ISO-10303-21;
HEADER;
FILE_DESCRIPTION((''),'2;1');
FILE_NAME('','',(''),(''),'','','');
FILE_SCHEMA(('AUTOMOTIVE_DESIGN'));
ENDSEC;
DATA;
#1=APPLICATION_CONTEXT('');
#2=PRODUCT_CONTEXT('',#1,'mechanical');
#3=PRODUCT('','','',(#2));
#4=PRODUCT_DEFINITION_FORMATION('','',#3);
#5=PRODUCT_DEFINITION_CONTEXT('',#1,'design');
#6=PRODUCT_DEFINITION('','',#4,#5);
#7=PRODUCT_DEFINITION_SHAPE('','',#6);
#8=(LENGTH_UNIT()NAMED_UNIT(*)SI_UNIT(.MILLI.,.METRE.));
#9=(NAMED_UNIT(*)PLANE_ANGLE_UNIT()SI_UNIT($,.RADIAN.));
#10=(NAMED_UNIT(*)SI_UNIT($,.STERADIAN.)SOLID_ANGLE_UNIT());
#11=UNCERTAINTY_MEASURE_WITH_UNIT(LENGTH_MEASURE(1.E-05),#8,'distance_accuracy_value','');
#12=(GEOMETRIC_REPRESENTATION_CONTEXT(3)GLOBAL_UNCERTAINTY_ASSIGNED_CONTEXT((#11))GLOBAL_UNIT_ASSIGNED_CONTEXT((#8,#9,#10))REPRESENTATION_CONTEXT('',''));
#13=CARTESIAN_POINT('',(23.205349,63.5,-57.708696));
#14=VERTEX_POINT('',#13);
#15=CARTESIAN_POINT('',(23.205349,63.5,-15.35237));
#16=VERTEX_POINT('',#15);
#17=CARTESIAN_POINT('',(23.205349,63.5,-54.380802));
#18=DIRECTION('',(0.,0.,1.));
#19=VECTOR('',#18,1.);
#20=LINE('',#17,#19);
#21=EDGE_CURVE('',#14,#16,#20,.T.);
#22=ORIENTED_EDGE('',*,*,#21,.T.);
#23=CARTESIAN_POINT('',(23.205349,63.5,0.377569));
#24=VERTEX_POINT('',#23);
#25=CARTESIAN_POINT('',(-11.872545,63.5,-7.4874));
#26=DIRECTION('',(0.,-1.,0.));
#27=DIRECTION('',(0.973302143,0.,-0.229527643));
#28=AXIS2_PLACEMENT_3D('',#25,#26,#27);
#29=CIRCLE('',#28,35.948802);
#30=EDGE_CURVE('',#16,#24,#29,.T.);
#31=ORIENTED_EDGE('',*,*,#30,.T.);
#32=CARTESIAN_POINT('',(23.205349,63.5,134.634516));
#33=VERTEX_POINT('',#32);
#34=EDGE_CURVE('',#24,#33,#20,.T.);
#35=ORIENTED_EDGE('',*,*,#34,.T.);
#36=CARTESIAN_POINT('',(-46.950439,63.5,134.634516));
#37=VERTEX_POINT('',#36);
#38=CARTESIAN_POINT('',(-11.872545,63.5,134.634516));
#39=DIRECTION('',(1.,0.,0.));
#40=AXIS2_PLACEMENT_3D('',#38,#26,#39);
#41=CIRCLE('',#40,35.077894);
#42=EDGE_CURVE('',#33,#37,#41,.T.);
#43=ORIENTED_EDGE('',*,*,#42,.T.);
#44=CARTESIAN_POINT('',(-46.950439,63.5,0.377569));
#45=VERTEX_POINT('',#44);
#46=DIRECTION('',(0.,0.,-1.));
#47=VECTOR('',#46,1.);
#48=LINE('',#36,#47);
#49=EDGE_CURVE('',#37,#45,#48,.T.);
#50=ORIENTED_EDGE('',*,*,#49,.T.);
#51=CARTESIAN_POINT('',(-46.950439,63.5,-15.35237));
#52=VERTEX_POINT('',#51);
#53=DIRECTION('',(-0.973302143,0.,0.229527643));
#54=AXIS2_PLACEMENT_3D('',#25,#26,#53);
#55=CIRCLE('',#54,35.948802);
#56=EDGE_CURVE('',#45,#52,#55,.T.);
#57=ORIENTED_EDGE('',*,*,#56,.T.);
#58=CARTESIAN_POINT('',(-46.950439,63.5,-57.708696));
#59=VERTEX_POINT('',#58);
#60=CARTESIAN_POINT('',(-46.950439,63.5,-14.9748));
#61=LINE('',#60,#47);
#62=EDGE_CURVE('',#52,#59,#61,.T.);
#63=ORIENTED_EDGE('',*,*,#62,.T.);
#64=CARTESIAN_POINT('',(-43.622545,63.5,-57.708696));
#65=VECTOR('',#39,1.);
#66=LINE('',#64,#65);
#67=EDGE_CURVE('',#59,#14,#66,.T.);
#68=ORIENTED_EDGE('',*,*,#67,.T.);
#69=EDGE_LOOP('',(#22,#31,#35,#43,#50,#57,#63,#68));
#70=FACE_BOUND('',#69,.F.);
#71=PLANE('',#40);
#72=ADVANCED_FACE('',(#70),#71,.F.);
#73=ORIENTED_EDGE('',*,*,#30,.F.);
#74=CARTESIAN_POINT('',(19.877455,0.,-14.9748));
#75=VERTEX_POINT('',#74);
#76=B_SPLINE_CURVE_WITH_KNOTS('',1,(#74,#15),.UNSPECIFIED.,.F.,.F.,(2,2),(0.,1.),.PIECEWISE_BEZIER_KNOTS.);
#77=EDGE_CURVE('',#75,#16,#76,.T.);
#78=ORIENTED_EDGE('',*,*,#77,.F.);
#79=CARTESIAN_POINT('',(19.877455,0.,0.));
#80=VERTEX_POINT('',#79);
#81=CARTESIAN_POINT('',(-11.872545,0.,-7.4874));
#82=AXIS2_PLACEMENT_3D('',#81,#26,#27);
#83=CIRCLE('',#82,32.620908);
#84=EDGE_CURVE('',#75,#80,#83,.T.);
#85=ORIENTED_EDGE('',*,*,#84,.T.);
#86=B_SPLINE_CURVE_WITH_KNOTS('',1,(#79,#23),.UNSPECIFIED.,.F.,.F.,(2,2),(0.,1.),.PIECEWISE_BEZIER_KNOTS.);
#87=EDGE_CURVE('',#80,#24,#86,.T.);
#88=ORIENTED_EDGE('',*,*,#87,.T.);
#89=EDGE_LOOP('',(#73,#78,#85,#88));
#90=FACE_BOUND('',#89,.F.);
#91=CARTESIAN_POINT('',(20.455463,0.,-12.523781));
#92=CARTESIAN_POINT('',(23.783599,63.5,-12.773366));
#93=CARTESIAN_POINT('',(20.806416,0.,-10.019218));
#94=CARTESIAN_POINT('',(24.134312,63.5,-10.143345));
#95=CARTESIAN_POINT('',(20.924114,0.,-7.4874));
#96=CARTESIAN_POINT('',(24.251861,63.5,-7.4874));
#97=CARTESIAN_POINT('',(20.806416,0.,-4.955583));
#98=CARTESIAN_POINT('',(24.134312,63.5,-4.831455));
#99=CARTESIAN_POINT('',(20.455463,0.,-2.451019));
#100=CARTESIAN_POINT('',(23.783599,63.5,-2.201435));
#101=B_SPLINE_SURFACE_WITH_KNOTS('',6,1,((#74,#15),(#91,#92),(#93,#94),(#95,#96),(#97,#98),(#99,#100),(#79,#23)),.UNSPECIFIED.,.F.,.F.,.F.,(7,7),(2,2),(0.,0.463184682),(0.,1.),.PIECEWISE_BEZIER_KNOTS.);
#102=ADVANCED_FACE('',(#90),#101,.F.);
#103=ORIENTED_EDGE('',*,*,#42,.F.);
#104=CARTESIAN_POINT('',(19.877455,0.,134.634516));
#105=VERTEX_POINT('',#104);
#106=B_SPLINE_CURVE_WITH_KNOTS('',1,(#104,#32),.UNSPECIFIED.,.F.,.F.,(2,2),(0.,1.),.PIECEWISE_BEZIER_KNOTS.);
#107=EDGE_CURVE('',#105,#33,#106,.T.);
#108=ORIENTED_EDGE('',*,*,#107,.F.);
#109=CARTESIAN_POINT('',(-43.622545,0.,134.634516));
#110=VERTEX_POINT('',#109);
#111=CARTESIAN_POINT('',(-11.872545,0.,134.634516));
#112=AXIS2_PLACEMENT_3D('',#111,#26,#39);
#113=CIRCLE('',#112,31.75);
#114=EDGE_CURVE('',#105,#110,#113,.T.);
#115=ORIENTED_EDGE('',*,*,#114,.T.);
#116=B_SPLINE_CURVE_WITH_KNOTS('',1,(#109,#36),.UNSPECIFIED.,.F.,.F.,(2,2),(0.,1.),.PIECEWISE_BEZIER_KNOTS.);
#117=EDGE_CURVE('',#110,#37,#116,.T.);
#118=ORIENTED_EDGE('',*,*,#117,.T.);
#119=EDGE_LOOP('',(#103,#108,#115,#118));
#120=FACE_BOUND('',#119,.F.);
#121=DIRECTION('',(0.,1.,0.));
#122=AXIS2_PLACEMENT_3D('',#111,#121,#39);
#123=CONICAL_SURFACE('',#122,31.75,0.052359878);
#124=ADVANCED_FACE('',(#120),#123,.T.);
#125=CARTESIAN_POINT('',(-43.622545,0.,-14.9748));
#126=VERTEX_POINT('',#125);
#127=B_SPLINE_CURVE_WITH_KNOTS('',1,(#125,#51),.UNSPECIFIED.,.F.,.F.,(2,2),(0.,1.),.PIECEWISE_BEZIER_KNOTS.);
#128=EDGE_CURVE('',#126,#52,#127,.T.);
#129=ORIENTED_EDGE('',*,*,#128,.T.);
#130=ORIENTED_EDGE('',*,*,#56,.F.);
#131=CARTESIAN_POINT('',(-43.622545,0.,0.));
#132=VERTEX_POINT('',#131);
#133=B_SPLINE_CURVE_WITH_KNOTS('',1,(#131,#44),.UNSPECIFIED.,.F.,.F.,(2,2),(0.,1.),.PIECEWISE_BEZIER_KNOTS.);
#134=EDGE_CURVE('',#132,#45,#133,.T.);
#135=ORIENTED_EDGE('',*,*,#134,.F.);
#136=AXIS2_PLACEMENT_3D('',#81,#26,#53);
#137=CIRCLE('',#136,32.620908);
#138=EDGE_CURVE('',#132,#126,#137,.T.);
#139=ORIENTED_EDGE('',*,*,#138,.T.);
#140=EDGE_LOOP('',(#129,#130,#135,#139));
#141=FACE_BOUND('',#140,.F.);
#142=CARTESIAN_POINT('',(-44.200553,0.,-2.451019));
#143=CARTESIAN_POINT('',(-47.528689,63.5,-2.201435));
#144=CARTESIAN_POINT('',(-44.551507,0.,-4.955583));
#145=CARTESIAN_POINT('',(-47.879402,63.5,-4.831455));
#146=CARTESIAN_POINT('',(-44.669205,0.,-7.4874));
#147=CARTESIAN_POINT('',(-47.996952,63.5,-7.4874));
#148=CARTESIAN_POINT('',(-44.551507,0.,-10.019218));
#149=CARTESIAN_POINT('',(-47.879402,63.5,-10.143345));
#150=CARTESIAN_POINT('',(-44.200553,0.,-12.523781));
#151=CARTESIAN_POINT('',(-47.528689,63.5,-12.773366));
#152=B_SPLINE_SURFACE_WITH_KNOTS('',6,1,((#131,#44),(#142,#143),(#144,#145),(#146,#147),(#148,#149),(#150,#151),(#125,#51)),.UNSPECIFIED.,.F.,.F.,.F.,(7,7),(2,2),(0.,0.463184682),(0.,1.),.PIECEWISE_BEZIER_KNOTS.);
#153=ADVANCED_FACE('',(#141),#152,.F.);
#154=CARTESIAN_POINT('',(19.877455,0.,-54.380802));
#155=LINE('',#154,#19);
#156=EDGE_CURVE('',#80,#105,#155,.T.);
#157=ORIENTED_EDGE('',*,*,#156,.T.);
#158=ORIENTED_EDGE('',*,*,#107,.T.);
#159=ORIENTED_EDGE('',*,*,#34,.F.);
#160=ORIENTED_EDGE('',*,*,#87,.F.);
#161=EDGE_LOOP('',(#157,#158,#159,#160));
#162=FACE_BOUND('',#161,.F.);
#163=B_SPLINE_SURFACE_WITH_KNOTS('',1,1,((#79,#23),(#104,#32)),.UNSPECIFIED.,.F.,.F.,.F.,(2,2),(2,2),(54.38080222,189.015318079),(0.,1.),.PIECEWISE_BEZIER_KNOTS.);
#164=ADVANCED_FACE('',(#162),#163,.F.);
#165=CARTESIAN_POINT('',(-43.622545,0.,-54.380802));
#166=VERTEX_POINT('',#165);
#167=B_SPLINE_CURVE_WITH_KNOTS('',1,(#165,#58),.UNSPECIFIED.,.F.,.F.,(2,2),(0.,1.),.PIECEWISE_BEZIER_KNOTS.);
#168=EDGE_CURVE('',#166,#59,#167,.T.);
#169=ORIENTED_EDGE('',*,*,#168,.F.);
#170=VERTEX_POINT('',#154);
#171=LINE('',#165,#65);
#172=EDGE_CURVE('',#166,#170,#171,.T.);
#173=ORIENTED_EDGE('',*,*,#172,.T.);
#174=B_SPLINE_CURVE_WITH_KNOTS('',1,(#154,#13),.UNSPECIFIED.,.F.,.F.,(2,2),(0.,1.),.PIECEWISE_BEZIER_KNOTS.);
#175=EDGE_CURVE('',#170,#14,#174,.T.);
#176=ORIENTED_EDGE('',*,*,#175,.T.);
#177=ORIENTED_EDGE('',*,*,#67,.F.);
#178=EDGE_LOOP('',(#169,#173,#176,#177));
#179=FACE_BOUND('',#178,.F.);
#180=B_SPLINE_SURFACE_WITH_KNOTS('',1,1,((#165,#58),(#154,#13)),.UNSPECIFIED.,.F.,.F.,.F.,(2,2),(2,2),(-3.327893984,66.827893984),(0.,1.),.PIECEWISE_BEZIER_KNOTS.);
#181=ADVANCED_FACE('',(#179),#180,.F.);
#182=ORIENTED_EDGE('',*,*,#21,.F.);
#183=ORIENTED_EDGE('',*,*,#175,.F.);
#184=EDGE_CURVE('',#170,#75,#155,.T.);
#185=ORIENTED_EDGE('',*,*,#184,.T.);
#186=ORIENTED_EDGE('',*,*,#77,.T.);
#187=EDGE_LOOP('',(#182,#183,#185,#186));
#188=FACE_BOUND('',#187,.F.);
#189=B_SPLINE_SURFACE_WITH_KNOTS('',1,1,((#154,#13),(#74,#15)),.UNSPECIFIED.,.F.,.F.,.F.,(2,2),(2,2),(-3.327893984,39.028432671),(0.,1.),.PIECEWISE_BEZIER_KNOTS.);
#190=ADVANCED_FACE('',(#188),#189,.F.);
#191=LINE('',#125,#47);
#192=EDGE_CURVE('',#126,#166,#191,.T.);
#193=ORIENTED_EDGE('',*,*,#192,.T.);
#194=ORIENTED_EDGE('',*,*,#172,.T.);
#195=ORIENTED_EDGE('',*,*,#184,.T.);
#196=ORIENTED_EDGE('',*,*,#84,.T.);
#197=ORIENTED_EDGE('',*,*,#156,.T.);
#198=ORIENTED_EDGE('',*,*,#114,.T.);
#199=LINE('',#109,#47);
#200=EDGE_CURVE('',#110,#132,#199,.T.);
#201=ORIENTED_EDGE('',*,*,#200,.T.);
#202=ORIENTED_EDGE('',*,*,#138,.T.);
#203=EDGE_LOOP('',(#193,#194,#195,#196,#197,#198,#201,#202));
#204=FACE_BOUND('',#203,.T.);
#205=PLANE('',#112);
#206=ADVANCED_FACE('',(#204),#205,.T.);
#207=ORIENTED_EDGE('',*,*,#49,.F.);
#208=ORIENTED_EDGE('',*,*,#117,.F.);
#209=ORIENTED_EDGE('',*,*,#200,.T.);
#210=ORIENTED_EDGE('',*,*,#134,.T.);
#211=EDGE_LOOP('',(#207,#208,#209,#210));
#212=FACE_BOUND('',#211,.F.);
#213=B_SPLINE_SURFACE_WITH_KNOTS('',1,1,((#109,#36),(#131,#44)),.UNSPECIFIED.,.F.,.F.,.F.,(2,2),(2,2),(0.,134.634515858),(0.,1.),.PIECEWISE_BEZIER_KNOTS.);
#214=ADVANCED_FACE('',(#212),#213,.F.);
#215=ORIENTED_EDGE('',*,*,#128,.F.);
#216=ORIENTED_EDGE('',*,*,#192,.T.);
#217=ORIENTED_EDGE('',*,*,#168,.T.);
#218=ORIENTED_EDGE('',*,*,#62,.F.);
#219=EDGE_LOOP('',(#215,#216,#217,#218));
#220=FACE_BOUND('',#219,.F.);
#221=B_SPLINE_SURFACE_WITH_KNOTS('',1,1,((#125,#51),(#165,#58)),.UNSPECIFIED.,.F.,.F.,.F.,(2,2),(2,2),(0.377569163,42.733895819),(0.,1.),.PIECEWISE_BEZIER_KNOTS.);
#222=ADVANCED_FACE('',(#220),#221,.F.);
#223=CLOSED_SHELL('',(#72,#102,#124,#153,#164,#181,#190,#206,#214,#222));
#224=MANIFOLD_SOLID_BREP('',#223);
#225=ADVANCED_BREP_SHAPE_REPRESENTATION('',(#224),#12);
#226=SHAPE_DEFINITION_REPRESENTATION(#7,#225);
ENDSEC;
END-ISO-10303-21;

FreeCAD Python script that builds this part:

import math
import FreeCAD as App
import Part
import Sketcher

V = App.Vector
Q = App.Units.Quantity

doc = App.newDocument("Part")
body = doc.addObject("PartDesign::Body", "Body")

sketch1 = body.newObject("Sketcher::SketchObject", "Sketch")
sketch1.AttachmentSupport = (doc.getObject("XZ_Plane"), [""])
sketch1.MapMode = "FlatFace"
sketch1.addGeometry([
    Part.ArcOfCircle(Part.Circle(V(-12, 135, 0), V(0, 0, 1), 32), math.radians(0), math.radians(180)),
    Part.LineSegment(V(-44, 135, 0), V(-44, 0, 0)),
    Part.ArcOfCircle(Part.Circle(V(-12, -7, 0), V(0, 0, 1), 33), math.radians(167), math.radians(193)),
    Part.LineSegment(V(-44, -15, 0), V(-44, -54, 0)),
    Part.LineSegment(V(-44, -54, 0), V(20, -54, 0)),
    Part.LineSegment(V(20, -54, 0), V(20, -15, 0)),
    Part.ArcOfCircle(Part.Circle(V(-12, -7, 0), V(0, 0, 1), 33), math.radians(-13), math.radians(13)),
    Part.LineSegment(V(20, 0, 0), V(20, 135, 0)),
], False)
sketch1.addConstraint([
    Sketcher.Constraint("Tangent", 0, 2, 1, 1),
    Sketcher.Constraint("Coincident", 1, 2, 2, 1),
    Sketcher.Constraint("Coincident", 2, 2, 3, 1),
    Sketcher.Constraint("Coincident", 3, 2, 4, 1),
    Sketcher.Constraint("Coincident", 4, 2, 5, 1),
    Sketcher.Constraint("Coincident", 5, 2, 6, 1),
    Sketcher.Constraint("Coincident", 6, 2, 7, 1),
    Sketcher.Constraint("Tangent", 7, 2, 0, 1),
    Sketcher.Constraint("Vertical", 1),
    Sketcher.Constraint("Vertical", 3),
    Sketcher.Constraint("Horizontal", 4),
    Sketcher.Constraint("Vertical", 5),
    Sketcher.Constraint("Vertical", 7),
    Sketcher.Constraint("Coincident", 6, 3, 2, 3),
    Sketcher.Constraint("Equal", 2, 6),
    Sketcher.Constraint("PointOnObject", 1, 2, -1),
    Sketcher.Constraint("PointOnObject", 6, 2, -1),
    Sketcher.Constraint("Horizontal", 2, 2, 5, 2),
    Sketcher.Constraint("Vertical", 1, 2, 2, 2),
    Sketcher.Constraint("Radius", 0, Q("1.25 in")),
    Sketcher.Constraint("Radius", 2, Q("32.620908 mm")),
    Sketcher.Constraint("DistanceY", 3, 2, 3, 1, Q("39.406002 mm")),
    Sketcher.Constraint("DistanceY", 1, 2, 1, 1, Q("134.634516 mm")),
    Sketcher.Constraint("DistanceX", 0, 3, -1, 1, Q("11.872545 mm")),
])
pad1 = body.newObject("PartDesign::Pad", "Pad")
pad1.Profile = sketch1
pad1.Length = Q("2.5 in")
pad1.Reversed = True
pad1.TaperAngle = 3

doc.recompute()
